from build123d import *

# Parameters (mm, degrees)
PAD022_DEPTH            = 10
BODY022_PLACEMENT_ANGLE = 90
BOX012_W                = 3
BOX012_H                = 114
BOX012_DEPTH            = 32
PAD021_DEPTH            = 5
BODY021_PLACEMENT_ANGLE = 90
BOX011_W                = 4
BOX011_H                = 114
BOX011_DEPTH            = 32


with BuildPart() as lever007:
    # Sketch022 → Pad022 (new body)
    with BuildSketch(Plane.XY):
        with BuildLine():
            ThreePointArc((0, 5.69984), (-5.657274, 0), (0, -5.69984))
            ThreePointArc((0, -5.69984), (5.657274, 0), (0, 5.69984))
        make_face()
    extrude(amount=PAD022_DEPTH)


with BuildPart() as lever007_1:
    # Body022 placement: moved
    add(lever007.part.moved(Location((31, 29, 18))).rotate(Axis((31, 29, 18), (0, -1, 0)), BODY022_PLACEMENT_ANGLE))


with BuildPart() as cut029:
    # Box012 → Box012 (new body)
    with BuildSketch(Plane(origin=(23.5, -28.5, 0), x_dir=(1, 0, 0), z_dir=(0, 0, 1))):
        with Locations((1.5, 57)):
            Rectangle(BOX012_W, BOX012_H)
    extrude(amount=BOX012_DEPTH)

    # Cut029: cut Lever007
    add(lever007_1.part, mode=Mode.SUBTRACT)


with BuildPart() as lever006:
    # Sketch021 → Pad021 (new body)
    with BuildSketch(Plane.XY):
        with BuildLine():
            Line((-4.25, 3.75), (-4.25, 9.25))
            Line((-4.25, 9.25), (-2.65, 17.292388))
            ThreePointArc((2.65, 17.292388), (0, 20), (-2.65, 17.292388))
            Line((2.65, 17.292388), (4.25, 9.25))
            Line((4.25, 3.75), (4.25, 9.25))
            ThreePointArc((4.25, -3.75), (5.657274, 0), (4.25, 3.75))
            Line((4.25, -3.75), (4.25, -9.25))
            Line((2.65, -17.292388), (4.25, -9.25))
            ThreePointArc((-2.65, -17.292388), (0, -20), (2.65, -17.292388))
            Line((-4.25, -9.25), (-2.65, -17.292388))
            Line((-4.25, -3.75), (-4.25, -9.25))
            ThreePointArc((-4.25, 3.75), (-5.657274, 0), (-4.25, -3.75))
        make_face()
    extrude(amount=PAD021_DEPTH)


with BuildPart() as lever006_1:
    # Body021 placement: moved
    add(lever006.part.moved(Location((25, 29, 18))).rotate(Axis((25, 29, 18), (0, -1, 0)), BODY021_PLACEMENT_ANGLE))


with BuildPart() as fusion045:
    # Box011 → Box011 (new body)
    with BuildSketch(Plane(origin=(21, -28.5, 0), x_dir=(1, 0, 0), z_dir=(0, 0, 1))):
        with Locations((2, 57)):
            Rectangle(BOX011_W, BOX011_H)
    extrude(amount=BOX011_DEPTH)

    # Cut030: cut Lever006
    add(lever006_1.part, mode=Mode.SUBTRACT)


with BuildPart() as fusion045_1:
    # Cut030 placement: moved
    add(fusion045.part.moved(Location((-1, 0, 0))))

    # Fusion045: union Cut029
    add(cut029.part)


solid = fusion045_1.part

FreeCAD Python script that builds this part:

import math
import FreeCAD as App
import Part
import Sketcher

V = App.Vector
Q = App.Units.Quantity

doc = App.newDocument("Part")
body = doc.addObject("PartDesign::Body", "Body")

sketch1 = doc.addObject("Sketcher::SketchObject", "Sketch")
body.addObject(sketch1)
sketch1.AttachmentSupport = (doc.XY_Plane, [""])
sketch1.MapMode = "FlatFace"
sketch1.addGeometry(Part.ArcOfCircle(Part.Circle(V(0.042726, 0, 0), V(0, 0, 1), 5.7), math.radians(90.429482), math.radians(269.570518)), False)
sketch1.addGeometry(Part.ArcOfCircle(Part.Circle(V(-0.042726, 0, 0), V(0, 0, 1), 5.7), math.radians(-89.570518), math.radians(89.570518)), False)
sketch1.addConstraint(Sketcher.Constraint("Coincident", 0, 1, 1, 2))
sketch1.addConstraint(Sketcher.Constraint("Coincident", 1, 1, 0, 2))
sketch1.addConstraint(Sketcher.Constraint("Equal", 0, 1))
sketch1.addConstraint(Sketcher.Constraint("Symmetric", 0, 3, 1, 3, -1, 1))
sketch1.addConstraint(Sketcher.Constraint("PointOnObject", 0, 3, -1))
sketch1.addConstraint(Sketcher.Constraint("Radius", 0, Q("5.7 mm")))
sketch1.addConstraint(Sketcher.Constraint("DistanceY", -1, 1, 0, 1, Q("5.69984 mm")))
pad1 = doc.addObject("PartDesign::Pad", "Pad")
body.addObject(pad1)
pad1.Profile = sketch1
pad1.Length = 10
body2 = doc.addObject("PartDesign::Body", "Body001")
doc.recompute()

body.Placement = App.Placement(V(31, 29, 18), App.Rotation(V(0, -1, 0), 90))
boolean = doc.addObject("PartDesign::Boolean", "Boolean")
body2.addObject(boolean)
boolean.Type = "Fuse"
boolean.addObjects([body])
body3 = doc.addObject("PartDesign::Body", "Body002")

sketch2 = doc.addObject("Sketcher::SketchObject", "Sketch001")
body3.addObject(sketch2)
sketch2.AttachmentSupport = (doc.getObject("XY_Plane002"), [""])
sketch2.MapMode = "FlatFace"
sketch2.addGeometry(Part.LineSegment(V(23.5, 85.5, 0), V(23.5, -28.5, 0)), False)
sketch2.addGeometry(Part.LineSegment(V(23.5, -28.5, 0), V(26.5, -28.5, 0)), False)
sketch2.addGeometry(Part.LineSegment(V(26.5, -28.5, 0), V(26.5, 85.5, 0)), False)
sketch2.addGeometry(Part.LineSegment(V(26.5, 85.5, 0), V(23.5, 85.5, 0)), False)
sketch2.addConstraint(Sketcher.Constraint("Coincident", 0, 2, 1, 1))
sketch2.addConstraint(Sketcher.Constraint("Coincident", 1, 2, 2, 1))
sketch2.addConstraint(Sketcher.Constraint("Coincident", 2, 2, 3, 1))
sketch2.addConstraint(Sketcher.Constraint("Coincident", 3, 2, 0, 1))
sketch2.addConstraint(Sketcher.Constraint("Vertical", 0))
sketch2.addConstraint(Sketcher.Constraint("Horizontal", 1))
sketch2.addConstraint(Sketcher.Constraint("Vertical", 2))
sketch2.addConstraint(Sketcher.Constraint("Horizontal", 3))
sketch2.addConstraint(Sketcher.Constraint("DistanceX", 1, 1, 1, 2, Q("3 mm")))
sketch2.addConstraint(Sketcher.Constraint("DistanceY", 0, 2, 0, 1, Q("114 mm")))
sketch2.addConstraint(Sketcher.Constraint("DistanceX", -1, 1, 0, 2, Q("23.5 mm")))
sketch2.addConstraint(Sketcher.Constraint("DistanceY", 0, 2, -1, 1, Q("28.5 mm")))
pad2 = doc.addObject("PartDesign::Pad", "Pad001")
body3.addObject(pad2)
pad2.Profile = sketch2
pad2.Length = 32
doc.recompute()

boolean2 = doc.addObject("PartDesign::Boolean", "Boolean001")
body3.addObject(boolean2)
boolean2.Type = "Cut"
boolean2.addObjects([body2])
body4 = doc.addObject("PartDesign::Body", "Body003")

sketch3 = doc.addObject("Sketcher::SketchObject", "Sketch002")
body4.addObject(sketch3)
sketch3.AttachmentSupport = (doc.getObject("XY_Plane003"), [""])
sketch3.MapMode = "FlatFace"
sketch3.addGeometry(Part.LineSegment(V(-4.2, 9.2, 0), V(-4.2, 3.8, 0)), False)
sketch3.addGeometry(Part.ArcOfCircle(Part.Circle(V(0, 0, 0), V(0, 0, 1), 5.7), math.radians(139), math.radians(221)), False)
sketch3.addGeometry(Part.LineSegment(V(-4.2, -3.8, 0), V(-4.2, -9.2, 0)), False)
sketch3.addGeometry(Part.LineSegment(V(-4.2, -9.2, 0), V(-2.6, -17.3, 0)), False)
sketch3.addGeometry(Part.ArcOfCircle(Part.Circle(V(0, -17.3, 0), V(0, 0, 1), 2.7), math.radians(179), math.radians(361)), False)
sketch3.addGeometry(Part.LineSegment(V(2.6, -17.3, 0), V(4.2, -9.2, 0)), False)
sketch3.addGeometry(Part.LineSegment(V(4.2, -9.2, 0), V(4.2, -3.8, 0)), False)
sketch3.addGeometry(Part.ArcOfCircle(Part.Circle(V(0, 0, 0), V(0, 0, 1), 5.7), math.radians(-41), math.radians(41)), False)
sketch3.addGeometry(Part.LineSegment(V(4.2, 3.8, 0), V(4.2, 9.2, 0)), False)
sketch3.addGeometry(Part.LineSegment(V(4.2, 9.2, 0), V(2.6, 17.3, 0)), False)
sketch3.addGeometry(Part.ArcOfCircle(Part.Circle(V(0, 17.3, 0), V(0, 0, 1), 2.7), math.radians(-1), math.radians(181)), False)
sketch3.addGeometry(Part.LineSegment(V(-2.6, 17.3, 0), V(-4.2, 9.2, 0)), False)
sketch3.addConstraint(Sketcher.Constraint("Coincident", 0, 2, 1, 1))
sketch3.addConstraint(Sketcher.Constraint("Coincident", 1, 2, 2, 1))
sketch3.addConstraint(Sketcher.Constraint("Coincident", 2, 2, 3, 1))
sketch3.addConstraint(Sketcher.Constraint("Coincident", 3, 2, 4, 1))
sketch3.addConstraint(Sketcher.Constraint("Coincident", 4, 2, 5, 1))
sketch3.addConstraint(Sketcher.Constraint("Coincident", 5, 2, 6, 1))
sketch3.addConstraint(Sketcher.Constraint("Coincident", 6, 2, 7, 1))
sketch3.addConstraint(Sketcher.Constraint("Coincident", 7, 2, 8, 1))
sketch3.addConstraint(Sketcher.Constraint("Coincident", 8, 2, 9, 1))
sketch3.addConstraint(Sketcher.Constraint("Coincident", 9, 2, 10, 1))
sketch3.addConstraint(Sketcher.Constraint("Coincident", 10, 2, 11, 1))
sketch3.addConstraint(Sketcher.Constraint("Coincident", 11, 2, 0, 1))
sketch3.addConstraint(Sketcher.Constraint("Vertical", 0))
sketch3.addConstraint(Sketcher.Constraint("Vertical", 2))
sketch3.addConstraint(Sketcher.Constraint("Vertical", 6))
sketch3.addConstraint(Sketcher.Constraint("Vertical", 8))
sketch3.addConstraint(Sketcher.Constraint("Equal", 1, 7))
sketch3.addConstraint(Sketcher.Constraint("Equal", 4, 10))
sketch3.addConstraint(Sketcher.Constraint("Symmetric", 1, 3, 7, 3, -1, 1))
sketch3.addConstraint(Sketcher.Constraint("Symmetric", 4, 3, 10, 3, -1, 1))
sketch3.addConstraint(Sketcher.Constraint("Symmetric", 2, 2, 8, 2, -1, 1))
sketch3.addConstraint(Sketcher.Constraint("Symmetric", 5, 2, 11, 2, -1, 1))
sketch3.addConstraint(Sketcher.Constraint("Symmetric", 3, 2, 4, 2, -2))
sketch3.addConstraint(Sketcher.Constraint("Symmetric", 2, 2, 5, 2, -2))
sketch3.addConstraint(Sketcher.Constraint("PointOnObject", 1, 3, -1))
sketch3.addConstraint(Sketcher.Constraint("Parallel", 3, 9))
sketch3.addConstraint(Sketcher.Constraint("Parallel", 5, 11))
sketch3.addConstraint(Sketcher.Constraint("Radius", 1, Q("5.699999 mm")))
sketch3.addConstraint(Sketcher.Constraint("DistanceY", 0, 2, 0, 1, Q("5.5 mm")))
sketch3.addConstraint(Sketcher.Constraint("DistanceY", 2, 2, 0, 2, Q("13 mm")))
sketch3.addConstraint(Sketcher.Constraint("Distance", 3, Q("8.2 mm")))
sketch3.addConstraint(Sketcher.Constraint("DistanceX", 2, 2, 3, 2, Q("1.6 mm")))
sketch3.addConstraint(Sketcher.Constraint("DistanceX", 3, 2, 4, 2, Q("5.3 mm")))
sketch3.addConstraint(Sketcher.Constraint("Radius", 4, Q("2.650613 mm")))
pad3 = doc.addObject("PartDesign::Pad", "Pad002")
body4.addObject(pad3)
pad3.Profile = sketch3
pad3.Length = 5
body5 = doc.addObject("PartDesign::Body", "Body004")
doc.recompute()

body4.Placement = App.Placement(V(25, 29, 18), App.Rotation(V(0, -1, 0), 90))
boolean3 = doc.addObject("PartDesign::Boolean", "Boolean002")
body5.addObject(boolean3)
boolean3.Type = "Fuse"
boolean3.addObjects([body4])
body6 = doc.addObject("PartDesign::Body", "Body005")

sketch4 = doc.addObject("Sketcher::SketchObject", "Sketch003")
body6.addObject(sketch4)
sketch4.AttachmentSupport = (doc.getObject("XY_Plane005"), [""])
sketch4.MapMode = "FlatFace"
sketch4.addGeometry(Part.LineSegment(V(21, 85.5, 0), V(21, -28.5, 0)), False)
sketch4.addGeometry(Part.LineSegment(V(21, -28.5, 0), V(25, -28.5, 0)), False)
sketch4.addGeometry(Part.LineSegment(V(25, -28.5, 0), V(25, 85.5, 0)), False)
sketch4.addGeometry(Part.LineSegment(V(25, 85.5, 0), V(21, 85.5, 0)), False)
sketch4.addConstraint(Sketcher.Constraint("Coincident", 0, 2, 1, 1))
sketch4.addConstraint(Sketcher.Constraint("Coincident", 1, 2, 2, 1))
sketch4.addConstraint(Sketcher.Constraint("Coincident", 2, 2, 3, 1))
sketch4.addConstraint(Sketcher.Constraint("Coincident", 3, 2, 0, 1))
sketch4.addConstraint(Sketcher.Constraint("Vertical", 0))
sketch4.addConstraint(Sketcher.Constraint("Horizontal", 1))
sketch4.addConstraint(Sketcher.Constraint("Vertical", 2))
sketch4.addConstraint(Sketcher.Constraint("Horizontal", 3))
sketch4.addConstraint(Sketcher.Constraint("DistanceX", 1, 1, 1, 2, Q("4 mm")))
sketch4.addConstraint(Sketcher.Constraint("DistanceY", 0, 2, 0, 1, Q("114 mm")))
sketch4.addConstraint(Sketcher.Constraint("DistanceX", -1, 1, 0, 2, Q("21 mm")))
sketch4.addConstraint(Sketcher.Constraint("DistanceY", 0, 2, -1, 1, Q("28.5 mm")))
pad4 = doc.addObject("PartDesign::Pad", "Pad003")
body6.addObject(pad4)
pad4.Profile = sketch4
pad4.Length = 32
doc.recompute()

boolean4 = doc.addObject("PartDesign::Boolean", "Boolean003")
body6.addObject(boolean4)
boolean4.Type = "Cut"
boolean4.addObjects([body5])
body7 = doc.addObject("PartDesign::Body", "Body006")
doc.recompute()

body6.Placement = App.Placement(V(-1, 0, 0), App.Rotation(V(0, 0, 1), 0))
boolean5 = doc.addObject("PartDesign::Boolean", "Boolean004")
body7.addObject(boolean5)
boolean5.Type = "Fuse"
boolean5.addObjects([body6])
doc.recompute()

boolean6 = doc.addObject("PartDesign::Boolean", "Boolean005")
body7.addObject(boolean6)
boolean6.Type = "Fuse"
boolean6.addObjects([body3])

doc.recompute()
